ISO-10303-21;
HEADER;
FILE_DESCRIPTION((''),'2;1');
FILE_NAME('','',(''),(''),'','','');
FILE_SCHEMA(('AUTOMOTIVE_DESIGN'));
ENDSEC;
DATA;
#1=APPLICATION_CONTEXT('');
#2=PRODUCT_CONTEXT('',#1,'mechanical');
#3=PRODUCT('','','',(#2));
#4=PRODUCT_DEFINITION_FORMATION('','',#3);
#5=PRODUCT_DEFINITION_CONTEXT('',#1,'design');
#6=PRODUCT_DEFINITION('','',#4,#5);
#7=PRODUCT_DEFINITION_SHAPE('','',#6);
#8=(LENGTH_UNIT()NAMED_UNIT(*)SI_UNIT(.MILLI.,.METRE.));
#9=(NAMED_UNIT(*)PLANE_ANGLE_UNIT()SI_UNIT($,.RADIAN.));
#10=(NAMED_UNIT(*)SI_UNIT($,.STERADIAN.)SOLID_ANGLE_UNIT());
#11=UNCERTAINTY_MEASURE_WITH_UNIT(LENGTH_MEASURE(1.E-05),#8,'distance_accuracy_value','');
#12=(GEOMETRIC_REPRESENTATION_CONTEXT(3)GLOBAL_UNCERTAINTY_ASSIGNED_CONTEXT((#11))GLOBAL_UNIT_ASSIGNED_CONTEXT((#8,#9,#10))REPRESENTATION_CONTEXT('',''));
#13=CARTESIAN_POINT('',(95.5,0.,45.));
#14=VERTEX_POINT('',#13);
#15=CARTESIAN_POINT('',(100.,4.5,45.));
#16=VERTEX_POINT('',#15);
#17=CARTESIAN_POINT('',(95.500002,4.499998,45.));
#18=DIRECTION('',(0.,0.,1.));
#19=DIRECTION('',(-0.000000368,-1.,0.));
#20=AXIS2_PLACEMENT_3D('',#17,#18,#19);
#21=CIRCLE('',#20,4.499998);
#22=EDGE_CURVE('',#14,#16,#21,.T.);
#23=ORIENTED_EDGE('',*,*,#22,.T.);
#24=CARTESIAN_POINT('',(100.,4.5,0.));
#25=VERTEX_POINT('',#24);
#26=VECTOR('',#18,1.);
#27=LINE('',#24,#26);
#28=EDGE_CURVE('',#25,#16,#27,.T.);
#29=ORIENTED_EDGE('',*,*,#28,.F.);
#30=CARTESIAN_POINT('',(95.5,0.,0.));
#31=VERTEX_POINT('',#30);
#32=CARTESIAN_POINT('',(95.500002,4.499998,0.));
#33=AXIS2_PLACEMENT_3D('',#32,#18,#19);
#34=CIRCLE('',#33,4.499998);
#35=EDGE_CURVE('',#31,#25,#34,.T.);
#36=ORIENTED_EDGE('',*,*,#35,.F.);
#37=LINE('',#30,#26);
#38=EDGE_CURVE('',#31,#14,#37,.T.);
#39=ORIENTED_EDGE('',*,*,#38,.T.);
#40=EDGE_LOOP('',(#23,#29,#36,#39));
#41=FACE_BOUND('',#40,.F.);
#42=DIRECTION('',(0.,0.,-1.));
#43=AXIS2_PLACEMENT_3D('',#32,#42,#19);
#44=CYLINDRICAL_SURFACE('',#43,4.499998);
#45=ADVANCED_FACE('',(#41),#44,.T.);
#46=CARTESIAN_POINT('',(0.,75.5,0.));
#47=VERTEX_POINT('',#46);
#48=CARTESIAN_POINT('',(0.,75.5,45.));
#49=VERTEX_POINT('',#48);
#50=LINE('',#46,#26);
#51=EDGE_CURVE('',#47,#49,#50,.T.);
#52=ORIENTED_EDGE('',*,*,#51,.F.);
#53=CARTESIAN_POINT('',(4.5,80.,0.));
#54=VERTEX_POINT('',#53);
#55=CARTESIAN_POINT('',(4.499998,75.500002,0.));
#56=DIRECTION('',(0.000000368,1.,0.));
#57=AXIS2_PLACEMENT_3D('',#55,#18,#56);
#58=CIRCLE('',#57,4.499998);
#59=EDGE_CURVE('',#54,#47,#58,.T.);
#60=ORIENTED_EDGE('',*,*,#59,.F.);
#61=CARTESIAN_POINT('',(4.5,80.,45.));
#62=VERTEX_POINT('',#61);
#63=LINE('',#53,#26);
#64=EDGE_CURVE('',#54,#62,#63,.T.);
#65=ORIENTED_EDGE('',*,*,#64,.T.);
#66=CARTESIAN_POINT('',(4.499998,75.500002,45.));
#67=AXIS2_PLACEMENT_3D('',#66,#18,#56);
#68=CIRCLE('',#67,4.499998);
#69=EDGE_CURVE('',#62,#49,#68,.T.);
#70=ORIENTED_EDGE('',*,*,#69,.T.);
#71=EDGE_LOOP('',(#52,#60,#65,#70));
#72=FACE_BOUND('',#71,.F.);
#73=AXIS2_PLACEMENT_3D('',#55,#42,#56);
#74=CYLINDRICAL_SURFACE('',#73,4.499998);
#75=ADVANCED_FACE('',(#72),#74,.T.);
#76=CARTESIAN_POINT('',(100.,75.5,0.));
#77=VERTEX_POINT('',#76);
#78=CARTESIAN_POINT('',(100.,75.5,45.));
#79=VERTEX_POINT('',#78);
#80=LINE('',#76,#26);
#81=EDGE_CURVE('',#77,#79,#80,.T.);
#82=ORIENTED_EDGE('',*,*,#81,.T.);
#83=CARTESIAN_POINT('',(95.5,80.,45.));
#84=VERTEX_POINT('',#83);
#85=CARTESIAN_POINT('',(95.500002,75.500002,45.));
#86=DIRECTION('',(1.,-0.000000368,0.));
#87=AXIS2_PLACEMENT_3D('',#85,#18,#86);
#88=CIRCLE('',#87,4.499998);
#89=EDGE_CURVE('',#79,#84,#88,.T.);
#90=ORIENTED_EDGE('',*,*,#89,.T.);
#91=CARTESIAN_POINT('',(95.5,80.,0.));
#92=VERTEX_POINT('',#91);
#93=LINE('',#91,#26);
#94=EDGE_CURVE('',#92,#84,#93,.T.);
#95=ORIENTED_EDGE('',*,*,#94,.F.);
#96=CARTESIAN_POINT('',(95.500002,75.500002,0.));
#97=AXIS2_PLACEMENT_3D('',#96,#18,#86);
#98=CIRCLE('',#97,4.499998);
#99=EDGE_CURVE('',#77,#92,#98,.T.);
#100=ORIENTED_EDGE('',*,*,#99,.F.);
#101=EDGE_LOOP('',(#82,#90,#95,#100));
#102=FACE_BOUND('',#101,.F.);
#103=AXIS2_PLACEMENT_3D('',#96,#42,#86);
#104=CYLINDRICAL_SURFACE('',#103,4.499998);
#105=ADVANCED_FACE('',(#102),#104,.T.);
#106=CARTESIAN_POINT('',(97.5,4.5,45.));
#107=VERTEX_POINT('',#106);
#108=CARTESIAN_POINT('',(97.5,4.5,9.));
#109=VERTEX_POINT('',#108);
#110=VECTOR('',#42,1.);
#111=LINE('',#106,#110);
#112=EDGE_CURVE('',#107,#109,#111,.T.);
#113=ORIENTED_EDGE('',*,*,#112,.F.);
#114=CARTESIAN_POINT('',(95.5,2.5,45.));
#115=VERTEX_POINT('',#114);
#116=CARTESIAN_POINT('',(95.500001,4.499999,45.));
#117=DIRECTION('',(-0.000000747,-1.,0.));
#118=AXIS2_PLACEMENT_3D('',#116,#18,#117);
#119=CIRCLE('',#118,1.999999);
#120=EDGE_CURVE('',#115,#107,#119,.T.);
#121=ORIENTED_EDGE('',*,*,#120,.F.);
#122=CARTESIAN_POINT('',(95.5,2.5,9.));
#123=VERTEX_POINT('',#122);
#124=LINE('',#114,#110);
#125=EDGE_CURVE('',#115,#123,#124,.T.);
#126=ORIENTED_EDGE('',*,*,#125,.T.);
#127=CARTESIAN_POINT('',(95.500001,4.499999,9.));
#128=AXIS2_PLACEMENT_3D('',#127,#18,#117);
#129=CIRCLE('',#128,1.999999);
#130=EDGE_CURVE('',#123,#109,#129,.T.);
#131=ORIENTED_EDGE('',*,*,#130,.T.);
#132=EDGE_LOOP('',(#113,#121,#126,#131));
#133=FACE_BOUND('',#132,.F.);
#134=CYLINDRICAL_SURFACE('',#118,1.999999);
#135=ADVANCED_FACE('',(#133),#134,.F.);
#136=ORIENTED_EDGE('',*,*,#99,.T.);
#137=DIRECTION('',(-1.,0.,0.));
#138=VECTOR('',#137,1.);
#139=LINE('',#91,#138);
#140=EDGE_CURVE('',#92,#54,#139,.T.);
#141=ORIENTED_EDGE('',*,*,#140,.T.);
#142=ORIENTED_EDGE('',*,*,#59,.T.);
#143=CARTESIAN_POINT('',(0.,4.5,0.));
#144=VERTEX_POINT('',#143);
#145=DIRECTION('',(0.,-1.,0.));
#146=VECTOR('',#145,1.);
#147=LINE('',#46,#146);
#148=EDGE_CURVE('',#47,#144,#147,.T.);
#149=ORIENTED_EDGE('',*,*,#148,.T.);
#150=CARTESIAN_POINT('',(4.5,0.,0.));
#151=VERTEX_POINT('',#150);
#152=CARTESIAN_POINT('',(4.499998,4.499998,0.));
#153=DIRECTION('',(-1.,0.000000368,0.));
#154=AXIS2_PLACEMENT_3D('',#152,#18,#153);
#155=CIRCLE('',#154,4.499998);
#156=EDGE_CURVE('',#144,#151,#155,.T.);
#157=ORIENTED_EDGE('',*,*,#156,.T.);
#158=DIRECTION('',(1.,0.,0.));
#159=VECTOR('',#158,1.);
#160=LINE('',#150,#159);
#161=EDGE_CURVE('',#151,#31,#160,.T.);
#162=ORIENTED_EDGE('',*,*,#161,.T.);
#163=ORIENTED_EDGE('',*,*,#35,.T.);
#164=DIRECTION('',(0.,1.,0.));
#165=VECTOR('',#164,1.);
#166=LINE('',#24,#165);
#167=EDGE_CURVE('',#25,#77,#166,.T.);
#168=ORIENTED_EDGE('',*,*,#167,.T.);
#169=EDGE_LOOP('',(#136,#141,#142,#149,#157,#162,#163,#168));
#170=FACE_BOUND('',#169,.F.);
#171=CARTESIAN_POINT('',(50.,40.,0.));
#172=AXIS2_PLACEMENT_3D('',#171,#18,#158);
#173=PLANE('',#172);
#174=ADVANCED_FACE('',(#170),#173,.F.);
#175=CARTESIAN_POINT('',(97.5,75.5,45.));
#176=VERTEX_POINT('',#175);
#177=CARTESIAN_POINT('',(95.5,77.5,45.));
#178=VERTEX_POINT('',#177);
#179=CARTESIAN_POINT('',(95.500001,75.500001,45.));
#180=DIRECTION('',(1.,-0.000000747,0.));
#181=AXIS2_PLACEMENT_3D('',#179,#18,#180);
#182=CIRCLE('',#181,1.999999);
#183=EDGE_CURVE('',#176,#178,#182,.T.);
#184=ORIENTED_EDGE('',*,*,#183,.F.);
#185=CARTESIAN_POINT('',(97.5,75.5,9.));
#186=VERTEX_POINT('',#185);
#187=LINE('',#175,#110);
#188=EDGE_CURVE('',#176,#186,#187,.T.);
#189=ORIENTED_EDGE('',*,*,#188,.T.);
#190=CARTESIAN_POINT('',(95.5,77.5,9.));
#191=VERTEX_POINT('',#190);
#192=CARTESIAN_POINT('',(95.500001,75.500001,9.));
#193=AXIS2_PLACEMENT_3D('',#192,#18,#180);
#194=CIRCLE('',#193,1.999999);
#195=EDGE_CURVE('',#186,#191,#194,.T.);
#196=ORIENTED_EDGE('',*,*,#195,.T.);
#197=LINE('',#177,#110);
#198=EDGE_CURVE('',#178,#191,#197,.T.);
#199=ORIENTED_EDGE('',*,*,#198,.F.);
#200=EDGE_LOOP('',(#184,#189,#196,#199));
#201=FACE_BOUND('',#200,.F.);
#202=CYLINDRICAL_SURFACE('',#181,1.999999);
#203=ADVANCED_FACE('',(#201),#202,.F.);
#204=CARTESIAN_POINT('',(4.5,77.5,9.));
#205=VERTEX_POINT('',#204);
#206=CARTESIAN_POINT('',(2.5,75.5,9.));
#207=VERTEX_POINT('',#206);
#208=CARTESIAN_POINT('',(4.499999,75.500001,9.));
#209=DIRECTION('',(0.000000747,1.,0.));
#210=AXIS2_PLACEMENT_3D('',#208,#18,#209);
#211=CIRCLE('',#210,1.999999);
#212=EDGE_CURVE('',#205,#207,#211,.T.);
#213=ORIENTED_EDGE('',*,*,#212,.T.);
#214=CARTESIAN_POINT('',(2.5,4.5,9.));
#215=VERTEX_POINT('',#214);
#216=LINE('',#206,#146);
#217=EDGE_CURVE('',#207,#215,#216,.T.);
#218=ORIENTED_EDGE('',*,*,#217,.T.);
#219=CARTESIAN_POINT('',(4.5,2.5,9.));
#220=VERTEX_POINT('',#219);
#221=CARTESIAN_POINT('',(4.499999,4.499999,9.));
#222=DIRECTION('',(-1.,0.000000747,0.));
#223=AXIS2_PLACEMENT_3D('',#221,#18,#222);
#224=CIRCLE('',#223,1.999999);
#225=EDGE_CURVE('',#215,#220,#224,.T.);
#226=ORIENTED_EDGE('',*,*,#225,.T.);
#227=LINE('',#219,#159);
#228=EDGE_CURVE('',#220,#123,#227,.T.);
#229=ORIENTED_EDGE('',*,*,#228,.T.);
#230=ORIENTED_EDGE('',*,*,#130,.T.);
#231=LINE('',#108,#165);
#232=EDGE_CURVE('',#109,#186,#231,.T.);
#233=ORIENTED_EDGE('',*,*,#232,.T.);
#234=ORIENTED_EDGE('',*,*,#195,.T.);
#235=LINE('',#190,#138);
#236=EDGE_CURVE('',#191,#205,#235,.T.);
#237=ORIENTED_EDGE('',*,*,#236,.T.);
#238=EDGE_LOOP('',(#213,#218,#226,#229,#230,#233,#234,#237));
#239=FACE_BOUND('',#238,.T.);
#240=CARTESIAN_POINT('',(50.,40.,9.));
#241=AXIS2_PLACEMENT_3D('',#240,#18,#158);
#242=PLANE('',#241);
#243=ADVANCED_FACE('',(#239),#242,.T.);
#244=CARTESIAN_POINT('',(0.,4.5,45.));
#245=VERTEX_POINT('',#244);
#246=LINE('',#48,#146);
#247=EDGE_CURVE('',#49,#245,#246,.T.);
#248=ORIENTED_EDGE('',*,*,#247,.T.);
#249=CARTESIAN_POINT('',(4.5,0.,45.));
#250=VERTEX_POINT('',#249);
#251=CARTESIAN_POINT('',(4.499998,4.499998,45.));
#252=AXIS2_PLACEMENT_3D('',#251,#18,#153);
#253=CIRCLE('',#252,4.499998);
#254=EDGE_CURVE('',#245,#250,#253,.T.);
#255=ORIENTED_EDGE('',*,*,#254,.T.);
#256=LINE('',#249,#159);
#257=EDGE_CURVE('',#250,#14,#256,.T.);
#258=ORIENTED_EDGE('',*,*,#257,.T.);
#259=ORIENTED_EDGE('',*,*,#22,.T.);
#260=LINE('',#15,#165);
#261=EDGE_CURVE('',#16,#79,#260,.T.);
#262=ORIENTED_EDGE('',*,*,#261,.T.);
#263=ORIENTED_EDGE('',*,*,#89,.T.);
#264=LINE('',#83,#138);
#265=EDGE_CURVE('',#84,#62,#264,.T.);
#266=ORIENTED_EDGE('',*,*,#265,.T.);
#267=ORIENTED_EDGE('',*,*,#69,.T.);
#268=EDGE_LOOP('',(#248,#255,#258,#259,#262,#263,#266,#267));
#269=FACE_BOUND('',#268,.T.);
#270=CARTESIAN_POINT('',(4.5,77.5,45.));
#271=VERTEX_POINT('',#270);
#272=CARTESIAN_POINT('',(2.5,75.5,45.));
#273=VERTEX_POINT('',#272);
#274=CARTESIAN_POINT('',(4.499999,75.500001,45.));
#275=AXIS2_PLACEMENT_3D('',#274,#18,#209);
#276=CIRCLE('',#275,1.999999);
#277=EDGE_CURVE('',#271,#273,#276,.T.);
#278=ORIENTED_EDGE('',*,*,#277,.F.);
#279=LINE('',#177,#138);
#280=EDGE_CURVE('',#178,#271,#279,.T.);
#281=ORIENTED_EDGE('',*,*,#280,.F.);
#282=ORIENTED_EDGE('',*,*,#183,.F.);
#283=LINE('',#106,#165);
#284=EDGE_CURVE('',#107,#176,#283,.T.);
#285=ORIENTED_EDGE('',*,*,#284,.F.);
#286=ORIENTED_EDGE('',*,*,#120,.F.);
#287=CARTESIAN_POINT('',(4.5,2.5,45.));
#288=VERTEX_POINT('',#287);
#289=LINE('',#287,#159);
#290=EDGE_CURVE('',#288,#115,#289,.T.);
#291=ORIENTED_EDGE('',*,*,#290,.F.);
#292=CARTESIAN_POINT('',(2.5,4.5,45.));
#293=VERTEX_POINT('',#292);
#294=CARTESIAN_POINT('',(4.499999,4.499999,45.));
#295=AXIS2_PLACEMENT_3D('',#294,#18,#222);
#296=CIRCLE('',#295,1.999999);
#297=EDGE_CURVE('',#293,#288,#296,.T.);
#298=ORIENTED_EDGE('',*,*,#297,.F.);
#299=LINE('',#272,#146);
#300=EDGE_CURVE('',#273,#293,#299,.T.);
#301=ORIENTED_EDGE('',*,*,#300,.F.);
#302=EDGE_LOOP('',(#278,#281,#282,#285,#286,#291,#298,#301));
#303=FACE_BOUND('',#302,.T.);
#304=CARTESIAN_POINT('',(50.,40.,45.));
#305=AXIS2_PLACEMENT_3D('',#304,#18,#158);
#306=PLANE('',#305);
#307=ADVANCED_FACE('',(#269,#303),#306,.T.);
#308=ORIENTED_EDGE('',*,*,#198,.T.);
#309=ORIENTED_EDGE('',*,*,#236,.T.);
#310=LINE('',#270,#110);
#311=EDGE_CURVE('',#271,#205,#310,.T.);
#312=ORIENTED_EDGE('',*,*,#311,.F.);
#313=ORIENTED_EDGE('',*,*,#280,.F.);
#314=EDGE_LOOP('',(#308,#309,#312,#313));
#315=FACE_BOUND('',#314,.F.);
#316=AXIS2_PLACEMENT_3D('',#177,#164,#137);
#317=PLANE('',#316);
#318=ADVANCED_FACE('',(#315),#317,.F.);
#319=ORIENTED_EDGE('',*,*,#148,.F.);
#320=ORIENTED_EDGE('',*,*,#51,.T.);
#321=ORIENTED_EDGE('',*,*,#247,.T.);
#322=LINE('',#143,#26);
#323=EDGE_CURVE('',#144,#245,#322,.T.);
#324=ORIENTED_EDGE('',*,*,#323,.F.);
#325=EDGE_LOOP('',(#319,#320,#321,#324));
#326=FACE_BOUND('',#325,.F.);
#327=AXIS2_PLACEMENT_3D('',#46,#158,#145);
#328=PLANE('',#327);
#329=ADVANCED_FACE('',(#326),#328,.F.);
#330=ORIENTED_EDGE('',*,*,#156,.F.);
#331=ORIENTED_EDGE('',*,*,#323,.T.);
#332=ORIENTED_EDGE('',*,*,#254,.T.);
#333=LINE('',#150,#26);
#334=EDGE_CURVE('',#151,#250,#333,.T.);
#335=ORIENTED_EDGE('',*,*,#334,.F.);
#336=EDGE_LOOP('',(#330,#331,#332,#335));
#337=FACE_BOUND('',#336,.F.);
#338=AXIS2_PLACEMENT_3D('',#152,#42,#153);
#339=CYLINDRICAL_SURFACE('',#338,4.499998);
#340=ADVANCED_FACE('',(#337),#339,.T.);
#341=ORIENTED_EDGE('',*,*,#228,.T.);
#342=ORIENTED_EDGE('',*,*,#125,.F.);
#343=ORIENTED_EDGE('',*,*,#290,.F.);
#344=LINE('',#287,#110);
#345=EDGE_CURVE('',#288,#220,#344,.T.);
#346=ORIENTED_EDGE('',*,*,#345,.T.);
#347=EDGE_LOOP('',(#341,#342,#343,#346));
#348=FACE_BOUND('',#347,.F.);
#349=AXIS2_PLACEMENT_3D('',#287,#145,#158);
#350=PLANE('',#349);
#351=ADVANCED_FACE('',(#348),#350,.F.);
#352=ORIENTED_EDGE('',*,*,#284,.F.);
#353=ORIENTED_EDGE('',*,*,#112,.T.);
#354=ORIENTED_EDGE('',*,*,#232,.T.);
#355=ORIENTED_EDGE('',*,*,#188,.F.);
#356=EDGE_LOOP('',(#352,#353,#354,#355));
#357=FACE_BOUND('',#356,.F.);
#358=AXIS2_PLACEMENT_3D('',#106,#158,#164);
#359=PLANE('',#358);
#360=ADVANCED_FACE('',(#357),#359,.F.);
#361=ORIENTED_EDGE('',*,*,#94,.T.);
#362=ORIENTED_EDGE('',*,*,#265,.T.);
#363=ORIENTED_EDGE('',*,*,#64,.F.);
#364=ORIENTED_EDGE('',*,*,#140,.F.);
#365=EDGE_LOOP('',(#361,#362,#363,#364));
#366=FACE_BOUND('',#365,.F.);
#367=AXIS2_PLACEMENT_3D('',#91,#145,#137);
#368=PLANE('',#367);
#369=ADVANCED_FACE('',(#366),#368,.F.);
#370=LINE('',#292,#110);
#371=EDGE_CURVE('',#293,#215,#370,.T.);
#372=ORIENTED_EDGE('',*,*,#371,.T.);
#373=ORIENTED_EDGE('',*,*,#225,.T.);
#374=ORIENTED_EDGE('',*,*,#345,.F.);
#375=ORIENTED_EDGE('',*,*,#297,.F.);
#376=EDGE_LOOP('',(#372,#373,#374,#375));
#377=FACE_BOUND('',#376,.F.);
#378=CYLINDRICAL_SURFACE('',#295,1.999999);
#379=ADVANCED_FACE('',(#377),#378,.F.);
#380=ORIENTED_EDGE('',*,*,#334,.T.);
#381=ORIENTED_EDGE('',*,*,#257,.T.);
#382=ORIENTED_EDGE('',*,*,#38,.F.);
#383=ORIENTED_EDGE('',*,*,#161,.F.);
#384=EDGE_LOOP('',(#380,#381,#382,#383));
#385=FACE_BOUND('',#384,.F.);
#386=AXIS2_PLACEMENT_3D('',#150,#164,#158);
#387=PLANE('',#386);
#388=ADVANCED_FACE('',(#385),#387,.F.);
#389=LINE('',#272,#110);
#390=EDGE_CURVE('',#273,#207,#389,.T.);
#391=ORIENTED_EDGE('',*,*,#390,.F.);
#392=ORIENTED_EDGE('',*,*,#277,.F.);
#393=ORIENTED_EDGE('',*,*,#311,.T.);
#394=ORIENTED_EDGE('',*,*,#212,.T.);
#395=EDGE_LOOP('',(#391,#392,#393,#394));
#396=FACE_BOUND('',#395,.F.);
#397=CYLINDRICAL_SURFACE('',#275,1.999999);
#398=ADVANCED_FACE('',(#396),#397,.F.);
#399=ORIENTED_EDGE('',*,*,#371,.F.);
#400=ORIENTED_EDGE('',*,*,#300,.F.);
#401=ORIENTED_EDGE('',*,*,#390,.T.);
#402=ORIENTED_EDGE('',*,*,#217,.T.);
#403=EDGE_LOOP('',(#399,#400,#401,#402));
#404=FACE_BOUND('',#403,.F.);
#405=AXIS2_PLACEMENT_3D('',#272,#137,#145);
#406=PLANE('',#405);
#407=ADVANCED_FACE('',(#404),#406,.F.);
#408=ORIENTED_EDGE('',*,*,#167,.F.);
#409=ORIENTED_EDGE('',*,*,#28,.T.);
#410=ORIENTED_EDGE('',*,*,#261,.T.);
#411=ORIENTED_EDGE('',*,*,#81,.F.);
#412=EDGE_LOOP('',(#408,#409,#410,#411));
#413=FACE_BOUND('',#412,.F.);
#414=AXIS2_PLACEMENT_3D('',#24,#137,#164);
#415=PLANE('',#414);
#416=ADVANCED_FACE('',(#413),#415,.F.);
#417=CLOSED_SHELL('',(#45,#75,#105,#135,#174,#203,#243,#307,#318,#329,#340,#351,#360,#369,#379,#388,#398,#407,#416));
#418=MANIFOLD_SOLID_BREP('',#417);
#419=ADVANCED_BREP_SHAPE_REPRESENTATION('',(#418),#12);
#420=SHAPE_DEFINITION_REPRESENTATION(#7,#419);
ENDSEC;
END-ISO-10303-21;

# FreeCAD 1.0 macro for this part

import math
import FreeCAD as App
import Part
import Sketcher
Q = App.Units.Quantity

doc = App.newDocument("Part")
body = doc.addObject("PartDesign::Body", "Body")

sketch1 = doc.addObject("Sketcher::SketchObject", "Sketch")
body.addObject(sketch1)
sketch1.AttachmentSupport = (doc.XY_Plane, [""])
sketch1.MapMode = "FlatFace"
sketch1.addGeometry(Part.LineSegment(App.Vector(4.5, 0, 0), App.Vector(95.5, 0, 0)), False)
sketch1.addGeometry(Part.ArcOfCircle(Part.Circle(App.Vector(95.5, 4.5, 0), App.Vector(0, 0, 1), 4.5), math.radians(-90), math.radians(0)), False)
sketch1.addGeometry(Part.LineSegment(App.Vector(100, 4.5, 0), App.Vector(100, 75.5, 0)), False)
sketch1.addGeometry(Part.ArcOfCircle(Part.Circle(App.Vector(95.5, 75.5, 0), App.Vector(0, 0, 1), 4.5), math.radians(0), math.radians(90)), False)
sketch1.addGeometry(Part.LineSegment(App.Vector(95.5, 80, 0), App.Vector(4.5, 80, 0)), False)
sketch1.addGeometry(Part.ArcOfCircle(Part.Circle(App.Vector(4.5, 75.5, 0), App.Vector(0, 0, 1), 4.5), math.radians(90), math.radians(180)), False)
sketch1.addGeometry(Part.LineSegment(App.Vector(0, 75.5, 0), App.Vector(0, 4.5, 0)), False)
sketch1.addGeometry(Part.ArcOfCircle(Part.Circle(App.Vector(4.5, 4.5, 0), App.Vector(0, 0, 1), 4.5), math.radians(180), math.radians(270)), False)
sketch1.addConstraint(Sketcher.Constraint("Tangent", 0, 2, 1, 1))
sketch1.addConstraint(Sketcher.Constraint("Tangent", 1, 2, 2, 1))
sketch1.addConstraint(Sketcher.Constraint("Tangent", 2, 2, 3, 1))
sketch1.addConstraint(Sketcher.Constraint("Tangent", 3, 2, 4, 1))
sketch1.addConstraint(Sketcher.Constraint("Tangent", 4, 2, 5, 1))
sketch1.addConstraint(Sketcher.Constraint("Tangent", 5, 2, 6, 1))
sketch1.addConstraint(Sketcher.Constraint("Tangent", 6, 2, 7, 1))
sketch1.addConstraint(Sketcher.Constraint("Tangent", 7, 2, 0, 1))
sketch1.addConstraint(Sketcher.Constraint("Horizontal", 0))
sketch1.addConstraint(Sketcher.Constraint("Vertical", 2))
sketch1.addConstraint(Sketcher.Constraint("Horizontal", 4))
sketch1.addConstraint(Sketcher.Constraint("Vertical", 6))
sketch1.addConstraint(Sketcher.Constraint("Equal", 1, 3))
sketch1.addConstraint(Sketcher.Constraint("Equal", 3, 5))
sketch1.addConstraint(Sketcher.Constraint("Equal", 5, 7))
sketch1.addConstraint(Sketcher.Constraint("PointOnObject", 0, 2, -1))
sketch1.addConstraint(Sketcher.Constraint("PointOnObject", 5, 2, -2))
sketch1.addConstraint(Sketcher.Constraint("Radius", 1, Q("4.499998 mm")))
sketch1.addConstraint(Sketcher.Constraint("DistanceX", 0, 1, 0, 2, Q("91 mm")))
sketch1.addConstraint(Sketcher.Constraint("DistanceY", 2, 1, 2, 2, Q("71 mm")))
pad1 = doc.addObject("PartDesign::Pad", "Pad")
body.addObject(pad1)
pad1.Profile = sketch1
pad1.Length = 45

sketch2 = doc.addObject("Sketcher::SketchObject", "Sketch001")
body.addObject(sketch2)
sketch2.AttachmentSupport = (doc.XY_Plane, [""])
sketch2.MapMode = "FlatFace"
sketch2.AttachmentOffset = App.Placement(App.Vector(0, 0, 45), App.Rotation())
sketch2.addGeometry(Part.LineSegment(App.Vector(2.5, 75.5, 0), App.Vector(2.5, 4.5, 0)), False)
sketch2.addGeometry(Part.ArcOfCircle(Part.Circle(App.Vector(4.5, 4.5, 0), App.Vector(0, 0, 1), 2), math.radians(180), math.radians(270)), False)
sketch2.addGeometry(Part.LineSegment(App.Vector(4.5, 2.5, 0), App.Vector(95.5, 2.5, 0)), False)
sketch2.addGeometry(Part.ArcOfCircle(Part.Circle(App.Vector(95.5, 4.5, 0), App.Vector(0, 0, 1), 2), math.radians(-90), math.radians(0)), False)
sketch2.addGeometry(Part.LineSegment(App.Vector(97.5, 4.5, 0), App.Vector(97.5, 75.5, 0)), False)
sketch2.addGeometry(Part.ArcOfCircle(Part.Circle(App.Vector(95.5, 75.5, 0), App.Vector(0, 0, 1), 2), math.radians(0), math.radians(90)), False)
sketch2.addGeometry(Part.LineSegment(App.Vector(95.5, 77.5, 0), App.Vector(4.5, 77.5, 0)), False)
sketch2.addGeometry(Part.ArcOfCircle(Part.Circle(App.Vector(4.5, 75.5, 0), App.Vector(0, 0, 1), 2), math.radians(90), math.radians(180)), False)
sketch2.addConstraint(Sketcher.Constraint("Tangent", 0, 2, 1, 1))
sketch2.addConstraint(Sketcher.Constraint("Tangent", 1, 2, 2, 1))
sketch2.addConstraint(Sketcher.Constraint("Tangent", 2, 2, 3, 1))
sketch2.addConstraint(Sketcher.Constraint("Tangent", 3, 2, 4, 1))
sketch2.addConstraint(Sketcher.Constraint("Tangent", 4, 2, 5, 1))
sketch2.addConstraint(Sketcher.Constraint("Tangent", 5, 2, 6, 1))
sketch2.addConstraint(Sketcher.Constraint("Tangent", 6, 2, 7, 1))
sketch2.addConstraint(Sketcher.Constraint("Tangent", 7, 2, 0, 1))
sketch2.addConstraint(Sketcher.Constraint("Vertical", 0))
sketch2.addConstraint(Sketcher.Constraint("Horizontal", 2))
sketch2.addConstraint(Sketcher.Constraint("Vertical", 4))
sketch2.addConstraint(Sketcher.Constraint("Horizontal", 6))
sketch2.addConstraint(Sketcher.Constraint("Equal", 1, 3))
sketch2.addConstraint(Sketcher.Constraint("Equal", 3, 5))
sketch2.addConstraint(Sketcher.Constraint("Equal", 5, 7))
sketch2.addConstraint(Sketcher.Constraint("Radius", 1, Q("1.999999 mm")))
sketch2.addConstraint(Sketcher.Constraint("DistanceX", 2, 1, 2, 2, Q("91 mm")))
sketch2.addConstraint(Sketcher.Constraint("DistanceY", 0, 2, 0, 1, Q("71 mm")))
sketch2.addConstraint(Sketcher.Constraint("DistanceX", -1, 1, 1, 3, Q("4.499999 mm")))
sketch2.addConstraint(Sketcher.Constraint("DistanceY", -1, 1, 1, 3, Q("4.499999 mm")))
pocket1 = doc.addObject("PartDesign::Pocket", "Pocket")
body.addObject(pocket1)
pocket1.Profile = sketch2
pocket1.Length = 36

doc.recompute()
